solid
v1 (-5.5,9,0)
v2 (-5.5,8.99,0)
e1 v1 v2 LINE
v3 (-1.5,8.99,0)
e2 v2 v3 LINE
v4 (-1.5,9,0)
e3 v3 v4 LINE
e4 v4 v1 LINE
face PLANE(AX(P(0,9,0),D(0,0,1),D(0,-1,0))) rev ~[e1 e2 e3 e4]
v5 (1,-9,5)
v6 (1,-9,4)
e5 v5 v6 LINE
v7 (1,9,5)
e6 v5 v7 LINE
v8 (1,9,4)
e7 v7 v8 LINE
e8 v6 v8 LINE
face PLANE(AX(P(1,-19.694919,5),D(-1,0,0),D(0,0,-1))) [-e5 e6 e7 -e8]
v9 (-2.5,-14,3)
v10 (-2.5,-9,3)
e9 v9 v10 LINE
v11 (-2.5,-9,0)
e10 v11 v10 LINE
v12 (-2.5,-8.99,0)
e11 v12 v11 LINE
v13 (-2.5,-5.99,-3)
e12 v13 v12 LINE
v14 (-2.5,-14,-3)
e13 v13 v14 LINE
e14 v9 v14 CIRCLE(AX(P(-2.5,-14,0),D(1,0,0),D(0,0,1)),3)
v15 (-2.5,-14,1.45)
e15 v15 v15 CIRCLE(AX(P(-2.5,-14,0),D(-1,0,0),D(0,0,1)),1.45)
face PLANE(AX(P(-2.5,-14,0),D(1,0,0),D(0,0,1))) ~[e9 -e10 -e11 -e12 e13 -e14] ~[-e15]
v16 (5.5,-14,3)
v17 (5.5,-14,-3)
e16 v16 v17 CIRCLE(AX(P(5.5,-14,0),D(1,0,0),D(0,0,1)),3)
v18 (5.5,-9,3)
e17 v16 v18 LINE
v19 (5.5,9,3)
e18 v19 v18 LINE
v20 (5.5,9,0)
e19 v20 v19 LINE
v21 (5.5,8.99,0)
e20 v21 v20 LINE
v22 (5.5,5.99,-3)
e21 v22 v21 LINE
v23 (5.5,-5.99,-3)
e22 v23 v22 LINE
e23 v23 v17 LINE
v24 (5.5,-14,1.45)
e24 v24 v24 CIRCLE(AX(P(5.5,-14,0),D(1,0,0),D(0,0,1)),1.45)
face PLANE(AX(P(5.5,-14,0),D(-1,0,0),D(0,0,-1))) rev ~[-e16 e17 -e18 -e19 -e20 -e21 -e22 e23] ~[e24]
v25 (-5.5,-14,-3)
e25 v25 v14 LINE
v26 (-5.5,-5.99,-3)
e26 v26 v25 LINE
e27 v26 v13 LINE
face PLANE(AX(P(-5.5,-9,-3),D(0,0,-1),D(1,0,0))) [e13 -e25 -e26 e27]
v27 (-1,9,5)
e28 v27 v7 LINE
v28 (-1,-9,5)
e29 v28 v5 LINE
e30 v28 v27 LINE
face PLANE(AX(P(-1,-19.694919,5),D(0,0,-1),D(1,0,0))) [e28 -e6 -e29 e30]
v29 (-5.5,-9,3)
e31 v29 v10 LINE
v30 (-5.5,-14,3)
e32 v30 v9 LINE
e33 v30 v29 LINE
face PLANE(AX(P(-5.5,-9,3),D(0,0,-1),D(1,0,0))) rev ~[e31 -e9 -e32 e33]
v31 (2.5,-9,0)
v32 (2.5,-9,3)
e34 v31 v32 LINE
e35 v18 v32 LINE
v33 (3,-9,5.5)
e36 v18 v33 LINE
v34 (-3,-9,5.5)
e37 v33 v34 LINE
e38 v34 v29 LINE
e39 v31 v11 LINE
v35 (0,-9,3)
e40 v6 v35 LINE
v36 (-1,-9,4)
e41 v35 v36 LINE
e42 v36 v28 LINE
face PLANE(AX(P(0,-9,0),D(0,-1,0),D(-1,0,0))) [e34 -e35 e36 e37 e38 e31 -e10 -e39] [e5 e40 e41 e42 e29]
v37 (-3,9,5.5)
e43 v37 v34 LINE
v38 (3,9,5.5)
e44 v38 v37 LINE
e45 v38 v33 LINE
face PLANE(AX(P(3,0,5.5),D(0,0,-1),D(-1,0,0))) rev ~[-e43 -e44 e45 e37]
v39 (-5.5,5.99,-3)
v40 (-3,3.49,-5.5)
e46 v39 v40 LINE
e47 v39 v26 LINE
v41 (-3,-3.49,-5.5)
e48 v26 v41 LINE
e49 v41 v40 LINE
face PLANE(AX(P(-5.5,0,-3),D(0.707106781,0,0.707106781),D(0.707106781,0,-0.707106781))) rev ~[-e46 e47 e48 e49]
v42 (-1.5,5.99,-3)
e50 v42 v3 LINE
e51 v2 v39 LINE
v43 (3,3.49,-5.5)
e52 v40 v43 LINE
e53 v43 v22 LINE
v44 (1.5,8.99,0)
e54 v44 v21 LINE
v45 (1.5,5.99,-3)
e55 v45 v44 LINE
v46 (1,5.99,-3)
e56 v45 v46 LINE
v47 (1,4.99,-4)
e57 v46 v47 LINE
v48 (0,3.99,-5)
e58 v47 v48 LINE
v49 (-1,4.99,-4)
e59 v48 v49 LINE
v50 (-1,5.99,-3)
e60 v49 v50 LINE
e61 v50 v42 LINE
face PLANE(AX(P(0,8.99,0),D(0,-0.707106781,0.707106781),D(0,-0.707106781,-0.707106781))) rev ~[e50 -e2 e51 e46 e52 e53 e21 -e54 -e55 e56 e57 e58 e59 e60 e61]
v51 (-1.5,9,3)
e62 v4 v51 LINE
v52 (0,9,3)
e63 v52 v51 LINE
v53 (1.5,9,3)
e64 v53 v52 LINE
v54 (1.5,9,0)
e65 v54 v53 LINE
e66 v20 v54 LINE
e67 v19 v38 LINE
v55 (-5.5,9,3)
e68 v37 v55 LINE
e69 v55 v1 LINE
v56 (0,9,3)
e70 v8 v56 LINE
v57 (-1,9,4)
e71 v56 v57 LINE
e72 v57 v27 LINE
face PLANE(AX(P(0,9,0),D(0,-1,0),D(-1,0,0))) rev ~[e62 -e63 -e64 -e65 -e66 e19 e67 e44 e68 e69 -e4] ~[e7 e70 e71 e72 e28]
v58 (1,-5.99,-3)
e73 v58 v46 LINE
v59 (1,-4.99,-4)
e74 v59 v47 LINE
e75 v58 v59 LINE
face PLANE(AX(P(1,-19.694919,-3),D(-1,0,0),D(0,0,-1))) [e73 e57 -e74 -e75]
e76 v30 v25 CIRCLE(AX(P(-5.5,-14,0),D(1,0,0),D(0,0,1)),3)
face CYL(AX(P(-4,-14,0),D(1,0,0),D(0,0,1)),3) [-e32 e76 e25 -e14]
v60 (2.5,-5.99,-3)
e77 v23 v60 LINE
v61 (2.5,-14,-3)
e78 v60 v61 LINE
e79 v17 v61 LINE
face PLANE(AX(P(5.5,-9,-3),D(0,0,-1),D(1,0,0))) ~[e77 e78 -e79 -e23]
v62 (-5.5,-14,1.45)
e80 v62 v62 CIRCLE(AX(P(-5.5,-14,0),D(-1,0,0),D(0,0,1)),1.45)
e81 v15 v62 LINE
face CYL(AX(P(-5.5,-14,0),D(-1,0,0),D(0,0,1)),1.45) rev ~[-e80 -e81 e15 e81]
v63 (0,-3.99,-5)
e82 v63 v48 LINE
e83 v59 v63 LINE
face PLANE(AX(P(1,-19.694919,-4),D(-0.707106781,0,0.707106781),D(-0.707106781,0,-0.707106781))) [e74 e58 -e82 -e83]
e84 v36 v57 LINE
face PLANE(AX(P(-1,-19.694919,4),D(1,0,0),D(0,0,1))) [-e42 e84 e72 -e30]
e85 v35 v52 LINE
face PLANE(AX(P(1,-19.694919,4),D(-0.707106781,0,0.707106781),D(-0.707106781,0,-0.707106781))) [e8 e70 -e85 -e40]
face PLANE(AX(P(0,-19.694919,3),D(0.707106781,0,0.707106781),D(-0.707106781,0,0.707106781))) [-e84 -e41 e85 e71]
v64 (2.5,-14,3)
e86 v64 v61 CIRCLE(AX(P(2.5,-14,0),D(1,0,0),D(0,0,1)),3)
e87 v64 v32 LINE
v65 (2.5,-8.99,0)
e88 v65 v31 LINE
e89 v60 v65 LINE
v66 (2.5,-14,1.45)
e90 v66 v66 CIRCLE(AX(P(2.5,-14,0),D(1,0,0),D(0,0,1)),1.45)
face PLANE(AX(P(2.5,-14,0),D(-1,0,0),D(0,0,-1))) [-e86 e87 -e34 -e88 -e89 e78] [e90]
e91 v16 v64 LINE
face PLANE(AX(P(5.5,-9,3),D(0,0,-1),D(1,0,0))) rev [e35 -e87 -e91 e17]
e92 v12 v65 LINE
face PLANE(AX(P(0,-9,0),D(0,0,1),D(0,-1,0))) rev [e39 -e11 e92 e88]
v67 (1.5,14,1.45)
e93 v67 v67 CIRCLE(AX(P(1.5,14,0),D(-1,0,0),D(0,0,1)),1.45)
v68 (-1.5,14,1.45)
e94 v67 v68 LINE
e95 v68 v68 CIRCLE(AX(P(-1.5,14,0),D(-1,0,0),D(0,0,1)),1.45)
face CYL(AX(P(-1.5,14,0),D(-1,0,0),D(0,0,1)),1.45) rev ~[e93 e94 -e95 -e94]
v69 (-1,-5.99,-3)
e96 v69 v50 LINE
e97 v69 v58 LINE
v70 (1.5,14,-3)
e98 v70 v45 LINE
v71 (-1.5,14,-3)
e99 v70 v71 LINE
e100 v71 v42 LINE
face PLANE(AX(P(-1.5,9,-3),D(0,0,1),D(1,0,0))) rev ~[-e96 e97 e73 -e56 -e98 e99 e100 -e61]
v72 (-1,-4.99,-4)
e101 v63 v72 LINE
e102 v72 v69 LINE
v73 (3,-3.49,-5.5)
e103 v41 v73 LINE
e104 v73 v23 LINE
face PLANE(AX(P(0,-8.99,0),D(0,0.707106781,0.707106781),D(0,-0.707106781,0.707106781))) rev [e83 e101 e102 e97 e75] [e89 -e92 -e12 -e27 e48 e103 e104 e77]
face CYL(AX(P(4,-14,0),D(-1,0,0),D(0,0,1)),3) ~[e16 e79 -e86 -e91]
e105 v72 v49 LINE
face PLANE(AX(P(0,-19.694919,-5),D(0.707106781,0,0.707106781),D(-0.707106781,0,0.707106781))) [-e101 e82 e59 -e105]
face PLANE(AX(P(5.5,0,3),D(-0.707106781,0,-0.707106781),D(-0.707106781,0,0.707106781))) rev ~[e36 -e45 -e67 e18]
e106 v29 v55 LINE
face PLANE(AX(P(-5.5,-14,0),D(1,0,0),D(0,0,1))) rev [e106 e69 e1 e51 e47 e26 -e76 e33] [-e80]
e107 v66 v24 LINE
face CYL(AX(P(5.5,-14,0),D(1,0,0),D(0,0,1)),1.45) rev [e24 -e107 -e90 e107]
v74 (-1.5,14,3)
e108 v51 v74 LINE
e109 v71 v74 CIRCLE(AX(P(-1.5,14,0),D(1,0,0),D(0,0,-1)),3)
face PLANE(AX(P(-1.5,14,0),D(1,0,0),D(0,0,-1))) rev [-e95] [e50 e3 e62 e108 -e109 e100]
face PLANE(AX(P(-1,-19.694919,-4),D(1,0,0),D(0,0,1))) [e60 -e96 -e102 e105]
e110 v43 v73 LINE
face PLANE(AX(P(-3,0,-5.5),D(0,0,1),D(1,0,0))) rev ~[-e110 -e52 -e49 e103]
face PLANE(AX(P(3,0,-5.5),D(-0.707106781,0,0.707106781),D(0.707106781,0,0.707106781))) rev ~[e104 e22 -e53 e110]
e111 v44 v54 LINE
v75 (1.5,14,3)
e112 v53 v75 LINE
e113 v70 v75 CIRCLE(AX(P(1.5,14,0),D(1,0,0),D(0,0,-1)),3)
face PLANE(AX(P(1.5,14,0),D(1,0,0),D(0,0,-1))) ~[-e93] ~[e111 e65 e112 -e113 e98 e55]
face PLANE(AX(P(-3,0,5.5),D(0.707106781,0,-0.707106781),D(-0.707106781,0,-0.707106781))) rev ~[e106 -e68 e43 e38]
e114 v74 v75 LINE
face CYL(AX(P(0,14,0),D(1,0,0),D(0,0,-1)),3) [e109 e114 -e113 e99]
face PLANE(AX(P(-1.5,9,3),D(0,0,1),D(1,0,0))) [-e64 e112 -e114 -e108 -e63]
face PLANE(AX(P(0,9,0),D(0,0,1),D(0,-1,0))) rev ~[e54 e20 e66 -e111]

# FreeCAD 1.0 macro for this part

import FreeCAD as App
import Part
import Sketcher
from FreeCAD import Vector
Q = App.Units.Quantity

doc = App.newDocument("Part")
body = doc.addObject("PartDesign::Body", "Body")

sketch1 = body.newObject("Sketcher::SketchObject", "Sketch")
sketch1.AttachmentSupport = (doc.getObject("XZ_Plane"), [""])
sketch1.MapMode = "FlatFace"
sketch1.addGeometry([
    Part.LineSegment(Vector(3, -5.5, 0), Vector(-3, -5.5, 0)),
    Part.LineSegment(Vector(-3, -5.5, 0), Vector(-5.5, -3, 0)),
    Part.LineSegment(Vector(-5.5, -3, 0), Vector(-5.5, 3, 0)),
    Part.LineSegment(Vector(-5.5, 3, 0), Vector(-3, 5.5, 0)),
    Part.LineSegment(Vector(-3, 5.5, 0), Vector(3, 5.5, 0)),
    Part.LineSegment(Vector(3, 5.5, 0), Vector(5.5, 3, 0)),
    Part.LineSegment(Vector(5.5, 3, 0), Vector(5.5, -3, 0)),
    Part.LineSegment(Vector(5.5, -3, 0), Vector(3, -5.5, 0)),
], False)
sketch1.addConstraint([
    Sketcher.Constraint("Coincident", 0, 2, 1, 1),
    Sketcher.Constraint("Coincident", 1, 2, 2, 1),
    Sketcher.Constraint("Coincident", 2, 2, 3, 1),
    Sketcher.Constraint("Coincident", 3, 2, 4, 1),
    Sketcher.Constraint("Coincident", 4, 2, 5, 1),
    Sketcher.Constraint("Coincident", 5, 2, 6, 1),
    Sketcher.Constraint("Coincident", 6, 2, 7, 1),
    Sketcher.Constraint("Coincident", 7, 2, 0, 1),
    Sketcher.Constraint("Horizontal", 0),
    Sketcher.Constraint("Vertical", 2),
    Sketcher.Constraint("Horizontal", 4),
    Sketcher.Constraint("Vertical", 6),
    Sketcher.Constraint("Symmetric", 0, 2, 4, 2, -1, 1),
    Sketcher.Constraint("Symmetric", 1, 2, 5, 2, -1, 1),
    Sketcher.Constraint("Perpendicular", 1, 3),
    Sketcher.Constraint("Perpendicular", 5, 7),
    Sketcher.Constraint("Horizontal", 2, 2, 5, 2),
    Sketcher.Constraint("Horizontal", 1, 2, 6, 2),
    Sketcher.Constraint("Vertical", 0, 2, 3, 2),
    Sketcher.Constraint("Equal", 4, 2),
    Sketcher.Constraint("DistanceX", 0, 2, 0, 1, 6.0),
    Sketcher.Constraint("DistanceY", 0, 2, 3, 2, 11.0),
])
pad1 = body.newObject("PartDesign::Pad", "Pad")
pad1.Profile = sketch1
pad1.Length = 18
pad1.Midplane = True

sketch2 = body.newObject("Sketcher::SketchObject", "Sketch001")
sketch2.AttachmentSupport = (doc.getObject("YZ_Plane"), [""])
sketch2.MapMode = "FlatFace"
sketch2.addGeometry([
    Part.LineSegment(Vector(9, 0, 0), Vector(8.99, 0, 0)),
    Part.LineSegment(Vector(8.99, 0, 0), Vector(3.49, -5.5, 0)),
    Part.LineSegment(Vector(3.49, -5.5, 0), Vector(9, -5.5, 0)),
    Part.LineSegment(Vector(9, -5.5, 0), Vector(9, 0, 0)),
], False)
sketch2.addConstraint([
    Sketcher.Constraint("Coincident", 0, 2, 1, 1),
    Sketcher.Constraint("Coincident", 1, 2, 2, 1),
    Sketcher.Constraint("Coincident", 2, 2, 3, 1),
    Sketcher.Constraint("Coincident", 3, 2, 0, 1),
    Sketcher.Constraint("Horizontal", 0),
    Sketcher.Constraint("Horizontal", 2),
    Sketcher.Constraint("Vertical", 3),
    Sketcher.Constraint("PointOnObject", 0, 2, -1),
    Sketcher.Constraint("Angle", 1, Q("-135 deg")),
    Sketcher.Constraint("DistanceY", 3, 1, 3, 2, 5.5),
    Sketcher.Constraint("DistanceX", -1, 1, 2, 2, 9.0),
    Sketcher.Constraint("DistanceX", 0, 2, 0, 1, 0.01),
])
pocket1 = body.newObject("PartDesign::Pocket", "Pocket")
pocket1.Profile = sketch2
pocket1.Length = 25.790755
pocket1.Midplane = True
doc.recompute()

mirrored = body.newObject("PartDesign::Mirrored", "Mirrored")
mirrored.Originals = [pocket1]
mirrored.MirrorPlane = (doc.getObject("XZ_Plane"), [""])
body.Tip = mirrored

sketch3 = body.newObject("Sketcher::SketchObject", "Sketch002")
sketch3.AttachmentSupport = (doc.getObject("XZ_Plane"), [""])
sketch3.MapMode = "FlatFace"
sketch3.AttachmentOffset = App.Placement(Vector(0, 0, 9), App.Rotation())
sketch3.addGeometry([
    Part.LineSegment(Vector(-5.5, 3, 0), Vector(-5.5, -3, 0)),
    Part.LineSegment(Vector(-5.5, -3, 0), Vector(-2.5, -3, 0)),
    Part.LineSegment(Vector(-2.5, -3, 0), Vector(-2.5, 3, 0)),
    Part.LineSegment(Vector(-2.5, 3, 0), Vector(-5.5, 3, 0)),
], False)
sketch3.addConstraint([
    Sketcher.Constraint("Coincident", 0, 2, 1, 1),
    Sketcher.Constraint("Coincident", 1, 2, 2, 1),
    Sketcher.Constraint("Coincident", 2, 2, 3, 1),
    Sketcher.Constraint("Coincident", 3, 2, 0, 1),
    Sketcher.Constraint("Vertical", 0),
    Sketcher.Constraint("Horizontal", 1),
    Sketcher.Constraint("Vertical", 2),
    Sketcher.Constraint("Horizontal", 3),
    Sketcher.Constraint("DistanceX", 1, 1, 1, 2, 3.0),
    Sketcher.Constraint("DistanceY", 0, 2, 0, 1, 6.0),
    Sketcher.Constraint("DistanceY", 0, 2, -1, 1, 3.0),
    Sketcher.Constraint("DistanceX", 0, 2, -1, 1, 5.5),
])
pad2 = body.newObject("PartDesign::Pad", "Pad001")
pad2.Profile = sketch3
pad2.Length = 10
pad2.Midplane = True

sketch4 = body.newObject("Sketcher::SketchObject", "Sketch003")
sketch4.AttachmentSupport = (doc.getObject("XZ_Plane"), [""])
sketch4.MapMode = "FlatFace"
sketch4.AttachmentOffset = App.Placement(Vector(0, 0, 14), App.Rotation())
sketch4.addGeometry([
    Part.LineSegment(Vector(-5.5, 3, 0), Vector(-5.5, 0, 0)),
    Part.LineSegment(Vector(-5.5, 0, 0), Vector(-2.5, 0, 0)),
    Part.LineSegment(Vector(-2.5, 0, 0), Vector(-2.5, 3, 0)),
    Part.LineSegment(Vector(-2.5, 3, 0), Vector(-5.5, 3, 0)),
], False)
sketch4.addConstraint([
    Sketcher.Constraint("Coincident", 0, 2, 1, 1),
    Sketcher.Constraint("Coincident", 1, 2, 2, 1),
    Sketcher.Constraint("Coincident", 2, 2, 3, 1),
    Sketcher.Constraint("Coincident", 3, 2, 0, 1),
    Sketcher.Constraint("Vertical", 0),
    Sketcher.Constraint("Horizontal", 1),
    Sketcher.Constraint("Vertical", 2),
    Sketcher.Constraint("Horizontal", 3),
    Sketcher.Constraint("PointOnObject", 0, 2, -1),
    Sketcher.Constraint("Equal", 3, 0),
    Sketcher.Constraint("DistanceX", 1, 1, 1, 2, 3.0),
    Sketcher.Constraint("DistanceX", 0, 2, -1, 1, 5.5),
])
revolution = body.newObject("PartDesign::Revolution", "Revolution")
revolution.Profile = sketch4
revolution.ReferenceAxis = (sketch4, ["H_Axis"])
revolution.Angle = 180

sketch5 = body.newObject("Sketcher::SketchObject", "Sketch004")
sketch5.AttachmentSupport = (doc.getObject("YZ_Plane"), [""])
sketch5.MapMode = "FlatFace"
sketch5.AttachmentOffset = App.Placement(Vector(0, 0, -5.5), App.Rotation())
sketch5.addGeometry(Part.Circle(Vector(-14, 0, 0), Vector(0, 0, 1), 1.45), False)
sketch5.addConstraint([
    Sketcher.Constraint("PointOnObject", 0, 3, -1),
    Sketcher.Constraint("Diameter", 0, 2.9),
    Sketcher.Constraint("DistanceX", 0, 3, -1, 1, 14.0),
])
pocket2 = body.newObject("PartDesign::Pocket", "Pocket001")
pocket2.Profile = sketch5
pocket2.Length = 10
pocket2.Midplane = True
doc.recompute()

mirrored2 = body.newObject("PartDesign::Mirrored", "Mirrored001")
mirrored2.Originals = [pad2, revolution, pocket2]
mirrored2.MirrorPlane = (doc.getObject("YZ_Plane"), [""])
body.Tip = mirrored2

sketch6 = body.newObject("Sketcher::SketchObject", "Sketch005")
sketch6.AttachmentSupport = (doc.getObject("XZ_Plane"), [""])
sketch6.MapMode = "FlatFace"
sketch6.AttachmentOffset = App.Placement(Vector(0, 0, -9), App.Rotation())
sketch6.addGeometry([
    Part.LineSegment(Vector(-1.5, -3, 0), Vector(-1.5, 3, 0)),
    Part.LineSegment(Vector(-1.5, 3, 0), Vector(1.5, 3, 0)),
    Part.LineSegment(Vector(1.5, 3, 0), Vector(1.5, -3, 0)),
    Part.LineSegment(Vector(1.5, -3, 0), Vector(-1.5, -3, 0)),
], False)
sketch6.addConstraint([
    Sketcher.Constraint("Coincident", 0, 2, 1, 1),
    Sketcher.Constraint("Coincident", 1, 2, 2, 1),
    Sketcher.Constraint("Coincident", 2, 2, 3, 1),
    Sketcher.Constraint("Coincident", 3, 2, 0, 1),
    Sketcher.Constraint("Vertical", 0),
    Sketcher.Constraint("Horizontal", 1),
    Sketcher.Constraint("Vertical", 2),
    Sketcher.Constraint("Horizontal", 3),
    Sketcher.Constraint("Symmetric", 0, 2, 2, 2, -1, 1),
    Sketcher.Constraint("DistanceX", 1, 1, 1, 2, 3.0),
    Sketcher.Constraint("DistanceY", 0, 1, 0, 2, 6.0),
])
pad3 = body.newObject("PartDesign::Pad", "Pad002")
pad3.Profile = sketch6
pad3.Length = 10
pad3.Midplane = True

sketch7 = body.newObject("Sketcher::SketchObject", "Sketch006")
sketch7.AttachmentSupport = (doc.getObject("XZ_Plane"), [""])
sketch7.MapMode = "FlatFace"
sketch7.AttachmentOffset = App.Placement(Vector(0, 0, -14), App.Rotation())
sketch7.addGeometry([
    Part.LineSegment(Vector(-1.5, -3, 0), Vector(-1.5, 0, 0)),
    Part.LineSegment(Vector(-1.5, 0, 0), Vector(1.5, 0, 0)),
    Part.LineSegment(Vector(1.5, 0, 0), Vector(1.5, -3, 0)),
    Part.LineSegment(Vector(1.5, -3, 0), Vector(-1.5, -3, 0)),
], False)
sketch7.addConstraint([
    Sketcher.Constraint("Coincident", 0, 2, 1, 1),
    Sketcher.Constraint("Coincident", 1, 2, 2, 1),
    Sketcher.Constraint("Coincident", 2, 2, 3, 1),
    Sketcher.Constraint("Coincident", 3, 2, 0, 1),
    Sketcher.Constraint("Vertical", 0),
    Sketcher.Constraint("Horizontal", 1),
    Sketcher.Constraint("Vertical", 2),
    Sketcher.Constraint("Horizontal", 3),
    Sketcher.Constraint("Symmetric", 0, 2, 1, 2, -1, 1),
    Sketcher.Constraint("Equal", 3, 0),
    Sketcher.Constraint("DistanceX", 1, 1, 1, 2, 3.0),
])
revolution2 = body.newObject("PartDesign::Revolution", "Revolution001")
revolution2.Profile = sketch7
revolution2.ReferenceAxis = (sketch7, ["H_Axis"])
revolution2.Angle = 180

sketch8 = body.newObject("Sketcher::SketchObject", "Sketch007")
sketch8.AttachmentSupport = (doc.getObject("YZ_Plane"), [""])
sketch8.MapMode = "FlatFace"
sketch8.AttachmentOffset = App.Placement(Vector(0, 0, -1.5), App.Rotation())
sketch8.addGeometry(Part.Circle(Vector(14, 0, 0), Vector(0, 0, 1), 1.45), False)
sketch8.addConstraint([
    Sketcher.Constraint("PointOnObject", 0, 3, -1),
    Sketcher.Constraint("Diameter", 0, 2.9),
    Sketcher.Constraint("DistanceX", -1, 1, 0, 3, 14.0),
])
pocket3 = body.newObject("PartDesign::Pocket", "Pocket002")
pocket3.Profile = sketch8
pocket3.Length = 10
pocket3.Midplane = True

sketch9 = body.newObject("Sketcher::SketchObject", "Sketch008")
sketch9.AttachmentSupport = (doc.getObject("XZ_Plane"), [""])
sketch9.MapMode = "FlatFace"
sketch9.addGeometry([
    Part.LineSegment(Vector(0, -5, 0), Vector(-1, -4, 0)),
    Part.LineSegment(Vector(-1, -4, 0), Vector(-1, -3, 0)),
    Part.LineSegment(Vector(-1, -3, 0), Vector(1, -3, 0)),
    Part.LineSegment(Vector(1, -3, 0), Vector(1, -4, 0)),
    Part.LineSegment(Vector(1, -4, 0), Vector(0, -5, 0)),
    Part.LineSegment(Vector(1, 4, 0), Vector(0, 3, 0)),
    Part.LineSegment(Vector(0, 3, 0), Vector(-1, 4, 0)),
    Part.LineSegment(Vector(-1, 4, 0), Vector(-1, 5, 0)),
    Part.LineSegment(Vector(-1, 5, 0), Vector(1, 5, 0)),
    Part.LineSegment(Vector(1, 5, 0), Vector(1, 4, 0)),
], False)
sketch9.addConstraint([
    Sketcher.Constraint("Coincident", 0, 2, 1, 1),
    Sketcher.Constraint("Coincident", 1, 2, 2, 1),
    Sketcher.Constraint("Coincident", 2, 2, 3, 1),
    Sketcher.Constraint("Coincident", 3, 2, 4, 1),
    Sketcher.Constraint("Coincident", 4, 2, 0, 1),
    Sketcher.Constraint("Coincident", 5, 2, 6, 1),
    Sketcher.Constraint("Coincident", 6, 2, 7, 1),
    Sketcher.Constraint("Coincident", 7, 2, 8, 1),
    Sketcher.Constraint("Coincident", 8, 2, 9, 1),
    Sketcher.Constraint("Coincident", 9, 2, 5, 1),
    Sketcher.Constraint("Vertical", 1),
    Sketcher.Constraint("Horizontal", 2),
    Sketcher.Constraint("Vertical", 3),
    Sketcher.Constraint("Vertical", 7),
    Sketcher.Constraint("Horizontal", 8),
    Sketcher.Constraint("Vertical", 9),
    Sketcher.Constraint("Symmetric", 3, 2, 6, 2, -1, 1),
    Sketcher.Constraint("Symmetric", 0, 2, 9, 2, -1, 1),
    Sketcher.Constraint("Symmetric", 0, 2, 3, 2, -2),
    Sketcher.Constraint("PointOnObject", 4, 2, -2),
    Sketcher.Constraint("PointOnObject", 5, 2, -2),
    Sketcher.Constraint("Perpendicular", 0, 4),
    Sketcher.Constraint("Parallel", 4, 5),
    Sketcher.Constraint("Equal", 3, 7),
    Sketcher.Constraint("DistanceX", 2, 1, 2, 2, 2.0),
    Sketcher.Constraint("DistanceY", 1, 1, 1, 2, 1.0),
    Sketcher.Constraint("DistanceY", 0, 2, -1, 1, 4.0),
])
pocket4 = body.newObject("PartDesign::Pocket", "Pocket003")
pocket4.Profile = sketch9
pocket4.Type = "ThroughAll"
pocket4.Midplane = True

doc.recompute()
